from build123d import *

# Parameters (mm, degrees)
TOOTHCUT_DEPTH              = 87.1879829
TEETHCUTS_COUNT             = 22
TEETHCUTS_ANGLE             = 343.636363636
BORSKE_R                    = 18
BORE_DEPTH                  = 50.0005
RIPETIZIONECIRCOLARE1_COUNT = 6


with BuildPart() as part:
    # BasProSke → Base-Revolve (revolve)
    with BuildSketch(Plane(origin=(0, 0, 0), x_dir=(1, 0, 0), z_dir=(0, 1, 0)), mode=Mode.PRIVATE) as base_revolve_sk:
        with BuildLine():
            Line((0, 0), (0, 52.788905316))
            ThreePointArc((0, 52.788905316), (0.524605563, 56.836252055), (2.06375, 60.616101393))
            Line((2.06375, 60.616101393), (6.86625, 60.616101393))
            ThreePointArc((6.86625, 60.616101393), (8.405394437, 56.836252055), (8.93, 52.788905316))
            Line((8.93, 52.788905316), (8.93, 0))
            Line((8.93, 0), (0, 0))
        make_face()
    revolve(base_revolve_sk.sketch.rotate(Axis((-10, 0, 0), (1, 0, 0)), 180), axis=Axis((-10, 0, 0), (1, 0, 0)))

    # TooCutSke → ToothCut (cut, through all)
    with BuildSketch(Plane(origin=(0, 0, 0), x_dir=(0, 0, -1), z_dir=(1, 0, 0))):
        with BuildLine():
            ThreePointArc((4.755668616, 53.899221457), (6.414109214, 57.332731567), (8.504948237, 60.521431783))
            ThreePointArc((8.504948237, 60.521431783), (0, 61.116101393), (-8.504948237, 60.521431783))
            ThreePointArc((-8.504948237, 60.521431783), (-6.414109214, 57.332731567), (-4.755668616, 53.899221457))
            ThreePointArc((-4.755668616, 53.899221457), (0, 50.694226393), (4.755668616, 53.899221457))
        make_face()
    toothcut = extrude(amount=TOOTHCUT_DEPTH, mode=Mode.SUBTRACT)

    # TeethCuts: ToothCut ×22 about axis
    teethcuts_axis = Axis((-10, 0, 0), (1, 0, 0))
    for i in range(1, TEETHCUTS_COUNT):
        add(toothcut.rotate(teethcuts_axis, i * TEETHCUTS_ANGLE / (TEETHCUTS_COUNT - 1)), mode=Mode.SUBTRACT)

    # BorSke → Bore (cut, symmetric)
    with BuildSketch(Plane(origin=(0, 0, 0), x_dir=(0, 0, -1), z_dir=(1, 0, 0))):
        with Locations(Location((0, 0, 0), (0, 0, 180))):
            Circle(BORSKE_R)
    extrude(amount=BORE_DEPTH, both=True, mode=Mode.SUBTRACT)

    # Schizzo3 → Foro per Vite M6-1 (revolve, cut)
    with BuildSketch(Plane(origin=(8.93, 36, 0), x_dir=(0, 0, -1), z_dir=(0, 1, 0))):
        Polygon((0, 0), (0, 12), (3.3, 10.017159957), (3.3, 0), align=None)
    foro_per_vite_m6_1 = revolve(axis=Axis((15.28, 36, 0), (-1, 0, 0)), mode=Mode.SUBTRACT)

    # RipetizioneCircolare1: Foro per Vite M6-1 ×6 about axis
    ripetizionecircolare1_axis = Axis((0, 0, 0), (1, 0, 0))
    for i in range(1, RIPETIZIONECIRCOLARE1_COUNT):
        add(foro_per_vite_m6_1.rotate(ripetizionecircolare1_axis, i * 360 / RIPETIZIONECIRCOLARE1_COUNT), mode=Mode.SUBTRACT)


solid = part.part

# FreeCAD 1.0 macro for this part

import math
import FreeCAD as App
import Part
import Sketcher
Q = App.Units.Quantity


def add_polygon(sketch, points):
    """Adds a closed chain of lines whose ends are joined by coincident constraints."""
    first, n = sketch.GeometryCount, len(points)
    for a, b in zip(points, points[1:] + points[:1]):
        sketch.addGeometry(Part.LineSegment(App.Vector(*a, 0), App.Vector(*b, 0)), False)
    for i in range(n):
        sketch.addConstraint(Sketcher.Constraint("Coincident", first + i, 2, first + (i + 1) % n, 1))

doc = App.newDocument("Part")
params = doc.addObject("Spreadsheet::Sheet", "Params")
for row, (alias, value) in enumerate([
    ("sketch1_width", "8.93 mm"),
    ("revolution_angle", "360 deg"),
    ("sketch3_diameter", "36 mm"),
    ("pocket2_length", "100.001 mm"),
    ("sketch4_width", "12 mm"),
    ("sketch4_height", "3.3 mm"),
    ("groove_angle", "360 deg"),
], start=1):
    params.set(f"A{row}", alias)
    params.set(f"B{row}", "=" + value)
    params.setAlias(f"B{row}", alias)

body = doc.addObject("PartDesign::Body", "Body")

# Sketch on XZ plane
sketch1 = doc.addObject("Sketcher::SketchObject", "Sketch")
body.addObject(sketch1)
sketch1.AttachmentSupport = (doc.XZ_Plane, [""])
sketch1.MapMode = "FlatFace"
sketch1.addGeometry(Part.LineSegment(App.Vector(0, -52.8, 0), App.Vector(0, 0, 0)), False)
sketch1.addGeometry(Part.LineSegment(App.Vector(0, 0, 0), App.Vector(8.9, 0, 0)), False)
sketch1.addGeometry(Part.LineSegment(App.Vector(8.9, 0, 0), App.Vector(8.9, -52.8, 0)), False)
sketch1.addGeometry(Part.ArcOfCircle(Part.Circle(App.Vector(-6.9, -52.8, 0), App.Vector(0, 0, 1), 15.9), math.radians(-30), math.radians(0)), False)
sketch1.addGeometry(Part.LineSegment(App.Vector(6.9, -60.6, 0), App.Vector(2.1, -60.6, 0)), False)
sketch1.addGeometry(Part.ArcOfCircle(Part.Circle(App.Vector(15.9, -52.8, 0), App.Vector(0, 0, 1), 15.9), math.radians(180), math.radians(210)), False)
sketch1.addConstraint(Sketcher.Constraint("Coincident", 0, 2, 1, 1))
sketch1.addConstraint(Sketcher.Constraint("Coincident", 1, 2, 2, 1))
sketch1.addConstraint(Sketcher.Constraint("Tangent", 2, 2, 3, 2))
sketch1.addConstraint(Sketcher.Constraint("Coincident", 3, 1, 4, 1))
sketch1.addConstraint(Sketcher.Constraint("Coincident", 4, 2, 5, 2))
sketch1.addConstraint(Sketcher.Constraint("Tangent", 5, 1, 0, 1))
sketch1.addConstraint(Sketcher.Constraint("Vertical", 0))
sketch1.addConstraint(Sketcher.Constraint("Horizontal", 1))
sketch1.addConstraint(Sketcher.Constraint("Vertical", 2))
sketch1.addConstraint(Sketcher.Constraint("Horizontal", 4))
sketch1.addConstraint(Sketcher.Constraint("Coincident", 0, 2, -1, 1))
sketch1.addConstraint(Sketcher.Constraint("Equal", 3, 5))
sketch1.addConstraint(Sketcher.Constraint("Horizontal", 3, 3, 5, 3))
sketch1.addConstraint(Sketcher.Constraint("Radius", 3, Q("15.875 mm")))
sketch1.addConstraint(Sketcher.Constraint("DistanceX", 1, 1, 1, 2, Q("8.93 mm")))
sketch1.addConstraint(Sketcher.Constraint("DistanceX", 4, 2, 4, 1, Q("4.8025 mm")))
sketch1.addConstraint(Sketcher.Constraint("DistanceY", 3, 1, -1, 1, Q("60.616101 mm")))
sketch1.setExpression("Constraints[14]", "Params.sketch1_width")
revolution = doc.addObject("PartDesign::Revolution", "Revolution")
body.addObject(revolution)
revolution.Profile = sketch1
revolution.ReferenceAxis = (sketch1, ["H_Axis"])
revolution.setExpression("Angle", "Params.revolution_angle")

# Sketch on YZ plane
sketch2 = doc.addObject("Sketcher::SketchObject", "Sketch001")
body.addObject(sketch2)
sketch2.AttachmentSupport = (doc.YZ_Plane, [""])
sketch2.MapMode = "FlatFace"
sketch2.addGeometry(Part.ArcOfCircle(Part.Circle(App.Vector(43, -32, 0), App.Vector(0, 0, 1), 29), math.radians(53.01), math.radians(67.95)), False)
sketch2.addGeometry(Part.ArcOfCircle(Part.Circle(App.Vector(0, 0, 0), App.Vector(0, 0, 1), 61), math.radians(-8), math.radians(8)), False)
sketch2.addGeometry(Part.ArcOfCircle(Part.Circle(App.Vector(43, 32, 0), App.Vector(0, 0, 1), 29), math.radians(-67.95), math.radians(-53.01)), False)
sketch2.addGeometry(Part.ArcOfCircle(Part.Circle(App.Vector(56, 0, 0), App.Vector(0, 0, 1), 5), math.radians(112), math.radians(248)), False)
sketch2.addConstraint(Sketcher.Constraint("Coincident", 0, 1, 1, 1))
sketch2.addConstraint(Sketcher.Constraint("Coincident", 1, 2, 2, 2))
sketch2.addConstraint(Sketcher.Constraint("Tangent", 2, 1, 3, 1))
sketch2.addConstraint(Sketcher.Constraint("Tangent", 3, 2, 0, 2))
sketch2.addConstraint(Sketcher.Constraint("Coincident", 1, 3, -1, 1))
sketch2.addConstraint(Sketcher.Constraint("Equal", 0, 2))
sketch2.addConstraint(Sketcher.Constraint("Symmetric", 0, 3, 2, 3, -1))
sketch2.addConstraint(Sketcher.Constraint("Radius", 0, Q("29.2608 mm")))
sketch2.addConstraint(Sketcher.Constraint("Radius", 1, Q("61.116101 mm")))
sketch2.addConstraint(Sketcher.Constraint("Radius", 3, Q("5.1308 mm")))
sketch2.addConstraint(Sketcher.Constraint("DistanceX", -1, 1, 0, 1, Q("60.521432 mm")))
sketch2.addConstraint(Sketcher.Constraint("DistanceX", -1, 1, 2, 1, Q("53.899221 mm")))
pocket1 = doc.addObject("PartDesign::Pocket", "Pocket")
body.addObject(pocket1)
pocket1.Profile = sketch2
pocket1.Type = "ThroughAll"
pocket1.Reversed = True
doc.recompute()

polarpattern = doc.addObject("PartDesign::PolarPattern", "PolarPattern")
body.addObject(polarpattern)
polarpattern.Originals = [pocket1]
polarpattern.Axis = (doc.X_Axis, [""])
polarpattern.Angle = 360
polarpattern.Occurrences = 22
body.Tip = polarpattern

# Sketch on YZ plane
sketch3 = doc.addObject("Sketcher::SketchObject", "Sketch002")
body.addObject(sketch3)
sketch3.AttachmentSupport = (doc.YZ_Plane, [""])
sketch3.MapMode = "FlatFace"
sketch3.addGeometry(Part.Circle(App.Vector(0, 0, 0), App.Vector(0, 0, 1), 18), False)
sketch3.addConstraint(Sketcher.Constraint("Coincident", 0, 3, -1, 1))
sketch3.addConstraint(Sketcher.Constraint("Diameter", 0, Q("36 mm")))
sketch3.setExpression("Constraints[1]", "Params.sketch3_diameter")
pocket2 = doc.addObject("PartDesign::Pocket", "Pocket001")
body.addObject(pocket2)
pocket2.Profile = sketch3
pocket2.setExpression("Length", "Params.pocket2_length")
pocket2.Midplane = True

# Sketch on XZ plane
sketch4 = doc.addObject("Sketcher::SketchObject", "Sketch003")
body.addObject(sketch4)
sketch4.AttachmentSupport = (doc.XZ_Plane, [""])
sketch4.MapMode = "FlatFace"
sketch4.AttachmentOffset = App.Placement(App.Vector(0, 0, -36), App.Rotation())
add_polygon(sketch4, [(-3.1, 0), (8.9, 0), (8.9, -3.3), (-1.1, -3.3)])  # lines 0-3
sketch4.addConstraint(Sketcher.Constraint("Horizontal", 0))
sketch4.addConstraint(Sketcher.Constraint("Vertical", 1))
sketch4.addConstraint(Sketcher.Constraint("Horizontal", 2))
sketch4.addConstraint(Sketcher.Constraint("PointOnObject", 0, 2, -1))
sketch4.addConstraint(Sketcher.Constraint("DistanceX", 0, 1, 0, 2, Q("12 mm")))
sketch4.addConstraint(Sketcher.Constraint("Angle", 3, Q("121 deg")))
sketch4.addConstraint(Sketcher.Constraint("DistanceY", 1, 2, 1, 1, Q("3.3 mm")))
sketch4.addConstraint(Sketcher.Constraint("DistanceX", -1, 1, 0, 2, Q("8.93 mm")))
sketch4.setExpression("Constraints[8]", "Params.sketch4_width")
sketch4.setExpression("Constraints[10]", "Params.sketch4_height")
groove = doc.addObject("PartDesign::Groove", "Groove")
body.addObject(groove)
groove.Profile = sketch4
groove.ReferenceAxis = (sketch4, ["H_Axis"])
groove.setExpression("Angle", "Params.groove_angle")
doc.recompute()

polarpattern2 = doc.addObject("PartDesign::PolarPattern", "PolarPattern001")
body.addObject(polarpattern2)
polarpattern2.Originals = [groove]
polarpattern2.Axis = (doc.X_Axis, [""])
polarpattern2.Angle = 360
polarpattern2.Occurrences = 6
body.Tip = polarpattern2

doc.recompute()
